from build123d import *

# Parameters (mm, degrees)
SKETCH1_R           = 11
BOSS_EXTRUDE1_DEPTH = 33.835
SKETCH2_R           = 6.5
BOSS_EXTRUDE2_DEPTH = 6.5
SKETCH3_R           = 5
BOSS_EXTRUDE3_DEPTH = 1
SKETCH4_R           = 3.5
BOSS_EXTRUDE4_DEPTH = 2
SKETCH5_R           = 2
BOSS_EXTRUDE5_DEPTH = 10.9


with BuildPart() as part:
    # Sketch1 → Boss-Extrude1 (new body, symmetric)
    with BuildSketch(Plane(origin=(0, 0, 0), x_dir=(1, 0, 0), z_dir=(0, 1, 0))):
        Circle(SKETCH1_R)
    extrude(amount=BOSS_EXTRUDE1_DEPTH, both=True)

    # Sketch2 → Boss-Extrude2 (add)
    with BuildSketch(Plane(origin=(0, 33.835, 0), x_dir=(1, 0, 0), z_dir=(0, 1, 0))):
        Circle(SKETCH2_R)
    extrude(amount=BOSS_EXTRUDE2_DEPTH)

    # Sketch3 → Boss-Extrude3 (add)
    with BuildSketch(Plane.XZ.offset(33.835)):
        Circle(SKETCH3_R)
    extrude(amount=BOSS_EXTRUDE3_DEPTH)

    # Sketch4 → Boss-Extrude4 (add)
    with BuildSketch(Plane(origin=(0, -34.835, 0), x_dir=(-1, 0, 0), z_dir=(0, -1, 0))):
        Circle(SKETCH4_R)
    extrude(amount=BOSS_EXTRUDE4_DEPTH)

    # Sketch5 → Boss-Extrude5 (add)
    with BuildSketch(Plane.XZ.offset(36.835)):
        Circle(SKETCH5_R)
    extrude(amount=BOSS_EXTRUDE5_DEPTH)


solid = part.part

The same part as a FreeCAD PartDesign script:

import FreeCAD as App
import Part
import Sketcher

V = App.Vector
Q = App.Units.Quantity

doc = App.newDocument("Part")
body = doc.addObject("PartDesign::Body", "Body")

sketch1 = doc.addObject("Sketcher::SketchObject", "Sketch")
body.addObject(sketch1)
sketch1.AttachmentSupport = (doc.XZ_Plane, [""])
sketch1.MapMode = "FlatFace"
sketch1.addGeometry(Part.Circle(V(0, 0, 0), V(0, 0, 1), 11), False)
sketch1.addConstraint(Sketcher.Constraint("Coincident", 0, 3, -1, 1))
sketch1.addConstraint(Sketcher.Constraint("Diameter", 0, Q("22 mm")))
pad1 = doc.addObject("PartDesign::Pad", "Pad")
body.addObject(pad1)
pad1.Profile = sketch1
pad1.Length = 67.67
pad1.Midplane = True

sketch2 = doc.addObject("Sketcher::SketchObject", "Sketch001")
body.addObject(sketch2)
sketch2.AttachmentSupport = (doc.XZ_Plane, [""])
sketch2.MapMode = "FlatFace"
sketch2.AttachmentOffset = App.Placement(V(0, 0, -33.835), App.Rotation())
sketch2.addGeometry(Part.Circle(V(0, 0, 0), V(0, 0, 1), 6.5), False)
sketch2.addConstraint(Sketcher.Constraint("Coincident", 0, 3, -1, 1))
sketch2.addConstraint(Sketcher.Constraint("Diameter", 0, Q("13 mm")))
pad2 = doc.addObject("PartDesign::Pad", "Pad001")
body.addObject(pad2)
pad2.Profile = sketch2
pad2.Length = 6.5
pad2.Reversed = True

sketch3 = doc.addObject("Sketcher::SketchObject", "Sketch002")
body.addObject(sketch3)
sketch3.AttachmentSupport = (doc.XZ_Plane, [""])
sketch3.MapMode = "FlatFace"
sketch3.AttachmentOffset = App.Placement(V(0, 0, 33.835), App.Rotation())
sketch3.addGeometry(Part.Circle(V(0, 0, 0), V(0, 0, 1), 5), False)
sketch3.addConstraint(Sketcher.Constraint("Coincident", 0, 3, -1, 1))
sketch3.addConstraint(Sketcher.Constraint("Diameter", 0, Q("10 mm")))
pad3 = doc.addObject("PartDesign::Pad", "Pad002")
body.addObject(pad3)
pad3.Profile = sketch3
pad3.Length = 1

sketch4 = doc.addObject("Sketcher::SketchObject", "Sketch003")
body.addObject(sketch4)
sketch4.AttachmentSupport = (doc.XZ_Plane, [""])
sketch4.MapMode = "FlatFace"
sketch4.AttachmentOffset = App.Placement(V(0, 0, 34.835), App.Rotation())
sketch4.addGeometry(Part.Circle(V(0, 0, 0), V(0, 0, 1), 3.5), False)
sketch4.addConstraint(Sketcher.Constraint("Coincident", 0, 3, -1, 1))
sketch4.addConstraint(Sketcher.Constraint("Diameter", 0, Q("7 mm")))
pad4 = doc.addObject("PartDesign::Pad", "Pad003")
body.addObject(pad4)
pad4.Profile = sketch4
pad4.Length = 2

sketch5 = doc.addObject("Sketcher::SketchObject", "Sketch004")
body.addObject(sketch5)
sketch5.AttachmentSupport = (doc.XZ_Plane, [""])
sketch5.MapMode = "FlatFace"
sketch5.AttachmentOffset = App.Placement(V(0, 0, 36.835), App.Rotation())
sketch5.addGeometry(Part.Circle(V(0, 0, 0), V(0, 0, 1), 2), False)
sketch5.addConstraint(Sketcher.Constraint("Coincident", 0, 3, -1, 1))
sketch5.addConstraint(Sketcher.Constraint("Diameter", 0, Q("4 mm")))
pad5 = doc.addObject("PartDesign::Pad", "Pad004")
body.addObject(pad5)
pad5.Profile = sketch5
pad5.Length = 10.9

doc.recompute()
